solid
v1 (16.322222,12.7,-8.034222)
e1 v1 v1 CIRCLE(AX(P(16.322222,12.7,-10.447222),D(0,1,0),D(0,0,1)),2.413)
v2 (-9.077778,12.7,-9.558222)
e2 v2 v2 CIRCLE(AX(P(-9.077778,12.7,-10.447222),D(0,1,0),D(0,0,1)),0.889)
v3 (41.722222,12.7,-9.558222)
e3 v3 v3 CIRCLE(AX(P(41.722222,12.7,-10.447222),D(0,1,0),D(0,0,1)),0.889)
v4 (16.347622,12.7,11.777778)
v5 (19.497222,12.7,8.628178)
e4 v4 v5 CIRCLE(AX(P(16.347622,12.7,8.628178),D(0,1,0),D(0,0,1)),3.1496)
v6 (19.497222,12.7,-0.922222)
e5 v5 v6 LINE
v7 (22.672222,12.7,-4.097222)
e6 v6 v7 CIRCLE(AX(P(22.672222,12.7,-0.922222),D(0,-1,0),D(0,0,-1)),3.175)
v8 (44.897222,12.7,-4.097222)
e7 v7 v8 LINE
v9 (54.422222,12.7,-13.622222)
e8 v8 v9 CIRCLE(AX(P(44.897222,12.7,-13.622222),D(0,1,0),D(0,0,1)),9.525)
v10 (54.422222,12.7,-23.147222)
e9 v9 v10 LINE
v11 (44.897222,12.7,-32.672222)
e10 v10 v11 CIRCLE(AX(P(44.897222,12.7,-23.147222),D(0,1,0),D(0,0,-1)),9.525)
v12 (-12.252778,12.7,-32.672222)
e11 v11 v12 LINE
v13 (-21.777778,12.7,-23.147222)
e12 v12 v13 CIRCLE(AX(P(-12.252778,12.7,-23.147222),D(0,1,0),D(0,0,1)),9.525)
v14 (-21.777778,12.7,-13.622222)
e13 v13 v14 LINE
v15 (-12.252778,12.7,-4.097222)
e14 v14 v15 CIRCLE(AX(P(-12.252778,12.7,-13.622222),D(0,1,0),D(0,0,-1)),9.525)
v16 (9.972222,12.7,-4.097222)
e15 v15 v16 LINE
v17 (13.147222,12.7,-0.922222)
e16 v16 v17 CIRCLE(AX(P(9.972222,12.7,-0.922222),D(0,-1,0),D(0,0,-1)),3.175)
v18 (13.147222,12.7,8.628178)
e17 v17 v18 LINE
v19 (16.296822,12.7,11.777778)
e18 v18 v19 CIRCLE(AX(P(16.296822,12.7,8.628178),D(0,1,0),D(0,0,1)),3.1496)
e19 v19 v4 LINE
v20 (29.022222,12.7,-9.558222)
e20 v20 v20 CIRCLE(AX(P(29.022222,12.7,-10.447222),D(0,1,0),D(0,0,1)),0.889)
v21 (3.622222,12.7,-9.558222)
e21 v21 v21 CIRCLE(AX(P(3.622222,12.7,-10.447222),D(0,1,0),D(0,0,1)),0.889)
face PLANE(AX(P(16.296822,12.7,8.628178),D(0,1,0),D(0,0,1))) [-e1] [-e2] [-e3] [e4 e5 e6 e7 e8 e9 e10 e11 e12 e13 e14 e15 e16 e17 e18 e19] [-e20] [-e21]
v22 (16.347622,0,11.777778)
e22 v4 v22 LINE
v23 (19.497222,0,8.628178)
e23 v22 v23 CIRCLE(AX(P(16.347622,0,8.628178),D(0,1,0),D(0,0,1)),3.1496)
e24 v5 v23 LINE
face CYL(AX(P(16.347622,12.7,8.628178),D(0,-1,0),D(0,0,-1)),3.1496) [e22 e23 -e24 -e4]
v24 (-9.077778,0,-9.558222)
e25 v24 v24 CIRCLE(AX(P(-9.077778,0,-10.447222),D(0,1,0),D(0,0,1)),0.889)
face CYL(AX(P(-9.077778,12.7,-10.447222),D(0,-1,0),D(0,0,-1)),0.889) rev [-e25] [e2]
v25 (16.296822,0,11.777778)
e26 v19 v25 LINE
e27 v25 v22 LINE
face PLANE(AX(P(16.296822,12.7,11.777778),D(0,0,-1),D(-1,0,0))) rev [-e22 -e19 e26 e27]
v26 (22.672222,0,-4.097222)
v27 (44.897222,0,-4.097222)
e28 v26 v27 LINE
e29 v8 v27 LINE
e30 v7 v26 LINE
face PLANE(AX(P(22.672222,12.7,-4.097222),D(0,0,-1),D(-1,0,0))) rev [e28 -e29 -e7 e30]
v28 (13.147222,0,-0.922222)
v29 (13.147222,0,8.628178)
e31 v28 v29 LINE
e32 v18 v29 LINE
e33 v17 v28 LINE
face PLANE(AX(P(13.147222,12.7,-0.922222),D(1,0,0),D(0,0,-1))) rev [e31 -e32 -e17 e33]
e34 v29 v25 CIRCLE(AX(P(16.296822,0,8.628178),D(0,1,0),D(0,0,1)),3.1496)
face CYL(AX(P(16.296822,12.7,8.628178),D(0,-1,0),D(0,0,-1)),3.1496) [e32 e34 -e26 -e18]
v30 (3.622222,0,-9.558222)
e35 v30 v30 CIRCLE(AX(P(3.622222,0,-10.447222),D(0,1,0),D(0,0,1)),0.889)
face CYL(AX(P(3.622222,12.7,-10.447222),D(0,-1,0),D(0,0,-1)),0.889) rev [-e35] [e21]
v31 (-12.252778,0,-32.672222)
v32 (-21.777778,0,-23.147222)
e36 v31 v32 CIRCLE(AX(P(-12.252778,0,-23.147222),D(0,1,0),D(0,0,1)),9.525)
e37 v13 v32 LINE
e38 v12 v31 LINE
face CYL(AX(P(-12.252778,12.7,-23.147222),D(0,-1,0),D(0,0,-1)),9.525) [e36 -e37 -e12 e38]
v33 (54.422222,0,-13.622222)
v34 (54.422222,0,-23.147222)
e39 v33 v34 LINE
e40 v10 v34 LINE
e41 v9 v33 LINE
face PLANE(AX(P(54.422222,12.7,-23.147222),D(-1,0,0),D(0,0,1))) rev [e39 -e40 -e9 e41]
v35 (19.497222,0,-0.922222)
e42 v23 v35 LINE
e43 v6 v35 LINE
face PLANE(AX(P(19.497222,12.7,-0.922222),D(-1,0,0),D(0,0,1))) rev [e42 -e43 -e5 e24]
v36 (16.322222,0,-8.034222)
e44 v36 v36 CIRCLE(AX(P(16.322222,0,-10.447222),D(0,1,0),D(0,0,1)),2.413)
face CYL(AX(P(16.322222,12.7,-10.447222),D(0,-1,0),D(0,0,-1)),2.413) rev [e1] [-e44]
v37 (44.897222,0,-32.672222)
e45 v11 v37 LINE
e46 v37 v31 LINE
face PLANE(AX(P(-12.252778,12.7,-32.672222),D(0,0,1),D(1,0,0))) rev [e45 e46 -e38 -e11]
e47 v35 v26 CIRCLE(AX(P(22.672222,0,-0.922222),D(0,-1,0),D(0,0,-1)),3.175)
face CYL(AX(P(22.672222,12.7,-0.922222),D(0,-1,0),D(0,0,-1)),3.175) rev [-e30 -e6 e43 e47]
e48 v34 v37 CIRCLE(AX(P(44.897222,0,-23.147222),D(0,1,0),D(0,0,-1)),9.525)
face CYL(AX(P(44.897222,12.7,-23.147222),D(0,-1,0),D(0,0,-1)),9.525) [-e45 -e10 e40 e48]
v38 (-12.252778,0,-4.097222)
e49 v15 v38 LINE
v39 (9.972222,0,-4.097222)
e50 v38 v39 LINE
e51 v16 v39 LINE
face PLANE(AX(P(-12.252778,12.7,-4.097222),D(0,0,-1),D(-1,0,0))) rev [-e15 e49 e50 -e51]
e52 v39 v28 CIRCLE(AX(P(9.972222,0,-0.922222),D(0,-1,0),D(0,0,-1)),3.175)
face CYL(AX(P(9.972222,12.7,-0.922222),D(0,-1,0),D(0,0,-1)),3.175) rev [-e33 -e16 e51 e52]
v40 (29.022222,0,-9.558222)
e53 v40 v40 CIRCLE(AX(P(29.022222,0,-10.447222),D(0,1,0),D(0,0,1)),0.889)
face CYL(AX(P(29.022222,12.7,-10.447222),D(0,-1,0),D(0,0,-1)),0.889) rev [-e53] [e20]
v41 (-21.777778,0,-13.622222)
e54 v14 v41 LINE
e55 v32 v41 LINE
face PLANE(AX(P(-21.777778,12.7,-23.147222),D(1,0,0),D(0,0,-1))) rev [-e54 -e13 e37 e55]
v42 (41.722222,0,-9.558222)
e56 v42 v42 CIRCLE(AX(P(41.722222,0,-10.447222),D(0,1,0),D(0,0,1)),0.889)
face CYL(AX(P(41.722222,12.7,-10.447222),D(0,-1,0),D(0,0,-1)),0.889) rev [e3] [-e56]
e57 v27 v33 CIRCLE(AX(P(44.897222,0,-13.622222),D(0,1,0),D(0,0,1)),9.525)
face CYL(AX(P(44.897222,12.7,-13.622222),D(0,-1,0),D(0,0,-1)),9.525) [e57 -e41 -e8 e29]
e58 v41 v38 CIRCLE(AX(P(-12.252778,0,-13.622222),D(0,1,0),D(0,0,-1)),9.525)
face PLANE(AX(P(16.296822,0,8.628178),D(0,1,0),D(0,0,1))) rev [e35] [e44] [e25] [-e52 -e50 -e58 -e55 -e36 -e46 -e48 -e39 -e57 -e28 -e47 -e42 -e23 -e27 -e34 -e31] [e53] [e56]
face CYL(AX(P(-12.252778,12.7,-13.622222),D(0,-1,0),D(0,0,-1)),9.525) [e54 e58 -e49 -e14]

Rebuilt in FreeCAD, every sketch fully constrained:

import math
import FreeCAD as App
import Part
import Sketcher
from FreeCAD import Vector
Q = App.Units.Quantity

doc = App.newDocument("Part")
body = doc.addObject("PartDesign::Body", "Body")

sketch1 = body.newObject("Sketcher::SketchObject", "Sketch")
sketch1.AttachmentSupport = (doc.getObject("XZ_Plane"), [""])
sketch1.MapMode = "FlatFace"
sketch1.addGeometry(Part.LineSegment(Vector(-12.252778, -4.097222, 0), Vector(9.972222, -4.097222, 0)), False)
sketch1.addGeometry(Part.ArcOfCircle(Part.Circle(Vector(9.972222, -0.922222, 0), Vector(0, 0, 1), 3.175), math.radians(-90), math.radians(0)), False)
sketch1.addGeometry(Part.LineSegment(Vector(13.147222, -0.922222, 0), Vector(13.147222, 8.628178, 0)), False)
sketch1.addGeometry(Part.ArcOfCircle(Part.Circle(Vector(16.296822, 8.628178, 0), Vector(0, 0, 1), 3.1496), math.radians(90), math.radians(180)), False)
sketch1.addGeometry(Part.LineSegment(Vector(16.296822, 11.777778, 0), Vector(16.347622, 11.777778, 0)), False)
sketch1.addGeometry(Part.ArcOfCircle(Part.Circle(Vector(16.347622, 8.628178, 0), Vector(0, 0, 1), 3.1496), math.radians(0), math.radians(90)), False)
sketch1.addGeometry(Part.LineSegment(Vector(19.497222, 8.628178, 0), Vector(19.497222, -0.922222, 0)), False)
sketch1.addGeometry(Part.ArcOfCircle(Part.Circle(Vector(22.672222, -0.922222, 0), Vector(0, 0, 1), 3.175), math.radians(-180), math.radians(-90)), False)
sketch1.addGeometry(Part.LineSegment(Vector(22.672222, -4.097222, 0), Vector(44.897222, -4.097222, 0)), False)
sketch1.addGeometry(Part.ArcOfCircle(Part.Circle(Vector(44.897222, -13.622222, 0), Vector(0, 0, 1), 9.525), math.radians(0), math.radians(90)), False)
sketch1.addGeometry(Part.LineSegment(Vector(54.422222, -13.622222, 0), Vector(54.422222, -23.147222, 0)), False)
sketch1.addGeometry(Part.ArcOfCircle(Part.Circle(Vector(44.897222, -23.147222, 0), Vector(0, 0, 1), 9.525), math.radians(-90), math.radians(0)), False)
sketch1.addGeometry(Part.LineSegment(Vector(44.897222, -32.672222, 0), Vector(-12.252778, -32.672222, 0)), False)
sketch1.addGeometry(Part.ArcOfCircle(Part.Circle(Vector(-12.252778, -23.147222, 0), Vector(0, 0, 1), 9.525), math.radians(180), math.radians(270)), False)
sketch1.addGeometry(Part.LineSegment(Vector(-21.777778, -23.147222, 0), Vector(-21.777778, -13.622222, 0)), False)
sketch1.addGeometry(Part.ArcOfCircle(Part.Circle(Vector(-12.252778, -13.622222, 0), Vector(0, 0, 1), 9.525), math.radians(90), math.radians(180)), False)
sketch1.addGeometry(Part.Circle(Vector(-9.077778, -10.447222, 0), Vector(0, 0, 1), 0.889), False)
sketch1.addGeometry(Part.Circle(Vector(3.622222, -10.447222, 0), Vector(0, 0, 1), 0.889), False)
sketch1.addGeometry(Part.Circle(Vector(16.322222, -10.447222, 0), Vector(0, 0, 1), 2.413), False)
sketch1.addGeometry(Part.Circle(Vector(29.022222, -10.447222, 0), Vector(0, 0, 1), 0.889), False)
sketch1.addGeometry(Part.Circle(Vector(41.722222, -10.447222, 0), Vector(0, 0, 1), 0.889), False)
sketch1.addConstraint(Sketcher.Constraint("Tangent", 0, 2, 1, 1))
sketch1.addConstraint(Sketcher.Constraint("Tangent", 1, 2, 2, 1))
sketch1.addConstraint(Sketcher.Constraint("Tangent", 2, 2, 3, 2))
sketch1.addConstraint(Sketcher.Constraint("Tangent", 3, 1, 4, 1))
sketch1.addConstraint(Sketcher.Constraint("Tangent", 4, 2, 5, 2))
sketch1.addConstraint(Sketcher.Constraint("Tangent", 5, 1, 6, 1))
sketch1.addConstraint(Sketcher.Constraint("Tangent", 6, 2, 7, 1))
sketch1.addConstraint(Sketcher.Constraint("Tangent", 7, 2, 8, 1))
sketch1.addConstraint(Sketcher.Constraint("Tangent", 8, 2, 9, 2))
sketch1.addConstraint(Sketcher.Constraint("Tangent", 9, 1, 10, 1))
sketch1.addConstraint(Sketcher.Constraint("Tangent", 10, 2, 11, 2))
sketch1.addConstraint(Sketcher.Constraint("Tangent", 11, 1, 12, 1))
sketch1.addConstraint(Sketcher.Constraint("Tangent", 12, 2, 13, 2))
sketch1.addConstraint(Sketcher.Constraint("Tangent", 13, 1, 14, 1))
sketch1.addConstraint(Sketcher.Constraint("Tangent", 14, 2, 15, 2))
sketch1.addConstraint(Sketcher.Constraint("Tangent", 15, 1, 0, 1))
sketch1.addConstraint(Sketcher.Constraint("Horizontal", 0))
sketch1.addConstraint(Sketcher.Constraint("Vertical", 2))
sketch1.addConstraint(Sketcher.Constraint("Horizontal", 4))
sketch1.addConstraint(Sketcher.Constraint("Vertical", 6))
sketch1.addConstraint(Sketcher.Constraint("Horizontal", 8))
sketch1.addConstraint(Sketcher.Constraint("Vertical", 10))
sketch1.addConstraint(Sketcher.Constraint("Horizontal", 12))
sketch1.addConstraint(Sketcher.Constraint("Vertical", 14))
sketch1.addConstraint(Sketcher.Constraint("Equal", 3, 5))
sketch1.addConstraint(Sketcher.Constraint("Equal", 1, 7))
sketch1.addConstraint(Sketcher.Constraint("Equal", 9, 11))
sketch1.addConstraint(Sketcher.Constraint("Equal", 11, 13))
sketch1.addConstraint(Sketcher.Constraint("Equal", 13, 15))
sketch1.addConstraint(Sketcher.Constraint("Equal", 16, 17))
sketch1.addConstraint(Sketcher.Constraint("Equal", 17, 19))
sketch1.addConstraint(Sketcher.Constraint("Equal", 19, 20))
sketch1.addConstraint(Sketcher.Constraint("Horizontal", 1, 3, 7, 3))
sketch1.addConstraint(Sketcher.Constraint("Horizontal", 16, 3, 17, 3))
sketch1.addConstraint(Sketcher.Constraint("Horizontal", 17, 3, 18, 3))
sketch1.addConstraint(Sketcher.Constraint("Horizontal", 18, 3, 19, 3))
sketch1.addConstraint(Sketcher.Constraint("Horizontal", 19, 3, 20, 3))
sketch1.addConstraint(Sketcher.Constraint("Equal", 0, 8))
sketch1.addConstraint(Sketcher.Constraint("Diameter", 16, Q("0.07 in")))
sketch1.addConstraint(Sketcher.Constraint("Diameter", 18, Q("0.19 in")))
sketch1.addConstraint(Sketcher.Constraint("Radius", 1, Q("0.125 in")))
sketch1.addConstraint(Sketcher.Constraint("Radius", 3, Q("0.124 in")))
sketch1.addConstraint(Sketcher.Constraint("Radius", 9, Q("0.375 in")))
sketch1.addConstraint(Sketcher.Constraint("DistanceX", 18, 3, 20, 3, Q("1 in")))
sketch1.addConstraint(Sketcher.Constraint("DistanceX", 19, 3, 9, 1, Q("1 in")))
sketch1.addConstraint(Sketcher.Constraint("DistanceX", 13, 1, 17, 3, Q("1 in")))
sketch1.addConstraint(Sketcher.Constraint("DistanceX", 12, 2, 12, 1, Q("2.25 in")))
sketch1.addConstraint(Sketcher.Constraint("DistanceX", 1, 3, 7, 3, Q("0.5 in")))
sketch1.addConstraint(Sketcher.Constraint("DistanceY", 13, 3, 16, 3, Q("0.5 in")))
sketch1.addConstraint(Sketcher.Constraint("DistanceX", 16, 3, 17, 3, Q("0.5 in")))
sketch1.addConstraint(Sketcher.Constraint("DistanceX", 17, 3, 18, 3, Q("0.5 in")))
sketch1.addConstraint(Sketcher.Constraint("DistanceY", 1, 2, 3, 1, Q("0.5 in")))
sketch1.addConstraint(Sketcher.Constraint("DistanceY", 10, 2, 10, 1, Q("0.375 in")))
sketch1.addConstraint(Sketcher.Constraint("DistanceX", -1, 1, 1, 3, Q("9.972222 mm")))
sketch1.addConstraint(Sketcher.Constraint("DistanceY", 1, 3, -1, 1, Q("0.922222 mm")))
pad1 = body.newObject("PartDesign::Pad", "Pad")
pad1.Profile = sketch1
pad1.Length = Q("0.5 in")
pad1.Reversed = True

doc.recompute()
